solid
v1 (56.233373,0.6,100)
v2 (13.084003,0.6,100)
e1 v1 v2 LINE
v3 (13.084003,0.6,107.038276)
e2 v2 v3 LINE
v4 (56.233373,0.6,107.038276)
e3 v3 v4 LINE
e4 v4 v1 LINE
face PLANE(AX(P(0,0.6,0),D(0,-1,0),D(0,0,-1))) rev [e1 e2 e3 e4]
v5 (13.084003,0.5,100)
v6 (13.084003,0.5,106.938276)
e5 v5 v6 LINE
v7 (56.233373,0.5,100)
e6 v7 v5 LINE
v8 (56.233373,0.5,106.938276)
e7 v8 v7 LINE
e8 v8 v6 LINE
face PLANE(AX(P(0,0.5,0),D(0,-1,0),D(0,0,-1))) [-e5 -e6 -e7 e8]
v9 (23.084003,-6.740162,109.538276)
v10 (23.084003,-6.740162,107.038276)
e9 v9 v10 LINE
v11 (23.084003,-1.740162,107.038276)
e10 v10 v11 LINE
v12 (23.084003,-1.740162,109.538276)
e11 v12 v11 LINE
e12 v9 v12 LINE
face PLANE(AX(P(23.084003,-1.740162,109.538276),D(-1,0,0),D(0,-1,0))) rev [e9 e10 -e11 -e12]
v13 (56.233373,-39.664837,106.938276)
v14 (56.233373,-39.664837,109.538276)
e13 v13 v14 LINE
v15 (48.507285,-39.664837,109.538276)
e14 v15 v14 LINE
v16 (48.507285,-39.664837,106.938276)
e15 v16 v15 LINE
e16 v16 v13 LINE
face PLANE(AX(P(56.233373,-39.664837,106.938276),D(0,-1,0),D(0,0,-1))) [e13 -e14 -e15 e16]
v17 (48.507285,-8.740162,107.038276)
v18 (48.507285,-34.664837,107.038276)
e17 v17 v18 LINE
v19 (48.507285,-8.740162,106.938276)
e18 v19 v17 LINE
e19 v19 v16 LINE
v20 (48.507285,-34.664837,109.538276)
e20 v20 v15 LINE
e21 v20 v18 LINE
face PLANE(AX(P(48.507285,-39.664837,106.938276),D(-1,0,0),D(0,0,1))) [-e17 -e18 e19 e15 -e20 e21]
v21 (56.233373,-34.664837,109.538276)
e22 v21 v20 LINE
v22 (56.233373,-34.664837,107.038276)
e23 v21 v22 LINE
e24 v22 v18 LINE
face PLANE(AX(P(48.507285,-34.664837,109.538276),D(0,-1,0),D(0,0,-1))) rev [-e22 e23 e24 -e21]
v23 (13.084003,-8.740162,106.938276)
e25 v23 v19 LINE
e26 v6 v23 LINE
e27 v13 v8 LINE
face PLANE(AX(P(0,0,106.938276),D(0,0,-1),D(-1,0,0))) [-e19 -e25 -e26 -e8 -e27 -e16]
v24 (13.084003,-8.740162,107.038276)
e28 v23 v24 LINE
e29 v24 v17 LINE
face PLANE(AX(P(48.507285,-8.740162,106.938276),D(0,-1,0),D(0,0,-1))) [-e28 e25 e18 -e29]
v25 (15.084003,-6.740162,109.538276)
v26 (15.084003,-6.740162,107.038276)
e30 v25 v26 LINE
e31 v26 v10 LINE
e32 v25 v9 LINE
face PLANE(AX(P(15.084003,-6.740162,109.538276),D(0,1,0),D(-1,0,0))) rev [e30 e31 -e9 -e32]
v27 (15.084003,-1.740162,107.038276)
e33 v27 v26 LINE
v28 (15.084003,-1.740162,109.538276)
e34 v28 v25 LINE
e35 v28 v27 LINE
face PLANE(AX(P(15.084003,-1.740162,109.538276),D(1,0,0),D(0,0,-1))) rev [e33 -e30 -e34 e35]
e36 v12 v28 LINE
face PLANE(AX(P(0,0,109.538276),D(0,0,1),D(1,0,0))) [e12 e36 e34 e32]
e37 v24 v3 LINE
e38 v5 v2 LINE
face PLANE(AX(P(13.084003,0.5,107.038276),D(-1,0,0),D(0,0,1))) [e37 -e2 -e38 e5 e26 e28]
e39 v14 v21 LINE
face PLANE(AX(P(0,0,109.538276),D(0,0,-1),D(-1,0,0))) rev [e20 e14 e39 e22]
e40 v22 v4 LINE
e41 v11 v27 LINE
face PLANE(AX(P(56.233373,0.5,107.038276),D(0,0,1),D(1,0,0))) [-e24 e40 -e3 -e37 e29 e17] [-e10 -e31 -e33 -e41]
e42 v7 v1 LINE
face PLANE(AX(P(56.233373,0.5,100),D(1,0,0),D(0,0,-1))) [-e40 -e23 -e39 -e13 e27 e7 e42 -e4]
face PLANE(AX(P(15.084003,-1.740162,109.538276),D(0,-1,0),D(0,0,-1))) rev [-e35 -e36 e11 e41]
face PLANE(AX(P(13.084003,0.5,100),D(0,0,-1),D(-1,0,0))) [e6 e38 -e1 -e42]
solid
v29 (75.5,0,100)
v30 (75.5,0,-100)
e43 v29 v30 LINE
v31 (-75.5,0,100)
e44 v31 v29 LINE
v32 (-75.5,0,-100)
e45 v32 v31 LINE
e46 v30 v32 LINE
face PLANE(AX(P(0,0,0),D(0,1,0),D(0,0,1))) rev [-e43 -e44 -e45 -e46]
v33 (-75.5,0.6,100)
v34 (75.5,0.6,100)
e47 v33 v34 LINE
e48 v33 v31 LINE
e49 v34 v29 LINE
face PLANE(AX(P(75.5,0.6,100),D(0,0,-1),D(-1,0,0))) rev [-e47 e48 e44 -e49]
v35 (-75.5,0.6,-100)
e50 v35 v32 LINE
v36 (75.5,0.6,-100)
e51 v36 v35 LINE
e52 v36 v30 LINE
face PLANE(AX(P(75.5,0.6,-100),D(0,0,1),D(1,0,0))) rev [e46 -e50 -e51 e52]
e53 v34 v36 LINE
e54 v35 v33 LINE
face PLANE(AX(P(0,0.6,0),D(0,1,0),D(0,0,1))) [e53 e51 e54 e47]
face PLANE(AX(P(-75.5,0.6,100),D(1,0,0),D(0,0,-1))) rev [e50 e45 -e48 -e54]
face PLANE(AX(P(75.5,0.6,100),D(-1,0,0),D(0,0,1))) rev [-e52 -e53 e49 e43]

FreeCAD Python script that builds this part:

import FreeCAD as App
import Part
import Sketcher

V = App.Vector
Q = App.Units.Quantity

doc = App.newDocument("Part")
body = doc.addObject("PartDesign::Body", "Body")

# Sketch on XZ plane
sketch1 = doc.addObject("Sketcher::SketchObject", "Sketch")
body.addObject(sketch1)
sketch1.AttachmentSupport = (doc.XZ_Plane, [""])
sketch1.MapMode = "FlatFace"
sketch1.addGeometry([
    Part.LineSegment(V(-75.5, -100, 0), V(-75.5, 100, 0)),
    Part.LineSegment(V(-75.5, 100, 0), V(75.5, 100, 0)),
    Part.LineSegment(V(75.5, 100, 0), V(75.5, -100, 0)),
    Part.LineSegment(V(75.5, -100, 0), V(-75.5, -100, 0)),
], False)
sketch1.addConstraint([
    Sketcher.Constraint("Coincident", 0, 2, 1, 1),
    Sketcher.Constraint("Coincident", 1, 2, 2, 1),
    Sketcher.Constraint("Coincident", 2, 2, 3, 1),
    Sketcher.Constraint("Coincident", 3, 2, 0, 1),
    Sketcher.Constraint("Vertical", 0),
    Sketcher.Constraint("Horizontal", 1),
    Sketcher.Constraint("Vertical", 2),
    Sketcher.Constraint("Horizontal", 3),
    Sketcher.Constraint("Symmetric", 0, 2, 2, 2, -1, 1),
    Sketcher.Constraint("DistanceX", 1, 1, 1, 2, Q("151 mm")),
    Sketcher.Constraint("DistanceY", 0, 1, 0, 2, Q("200 mm")),
])
pad1 = doc.addObject("PartDesign::Pad", "Pad")
body.addObject(pad1)
pad1.Profile = sketch1
pad1.Length = 0.6
pad1.Reversed = True
body2 = doc.addObject("PartDesign::Body", "Body001")

# Sketch on XZ plane
sketch2 = doc.addObject("Sketcher::SketchObject", "Sketch001")
body2.addObject(sketch2)
sketch2.AttachmentSupport = (doc.getObject("XZ_Plane001"), [""])
sketch2.MapMode = "FlatFace"
sketch2.AttachmentOffset = App.Placement(V(0, 0, -0.6), App.Rotation())
sketch2.addGeometry([
    Part.LineSegment(V(13.084003, 100, 0), V(13.084003, 107.038276, 0)),
    Part.LineSegment(V(13.084003, 107.038276, 0), V(56.233373, 107.038276, 0)),
    Part.LineSegment(V(56.233373, 107.038276, 0), V(56.233373, 100, 0)),
    Part.LineSegment(V(56.233373, 100, 0), V(13.084003, 100, 0)),
], False)
sketch2.addConstraint([
    Sketcher.Constraint("Coincident", 0, 2, 1, 1),
    Sketcher.Constraint("Coincident", 1, 2, 2, 1),
    Sketcher.Constraint("Coincident", 2, 2, 3, 1),
    Sketcher.Constraint("Coincident", 3, 2, 0, 1),
    Sketcher.Constraint("Vertical", 0),
    Sketcher.Constraint("Horizontal", 1),
    Sketcher.Constraint("Vertical", 2),
    Sketcher.Constraint("Horizontal", 3),
    Sketcher.Constraint("DistanceY", -1, 1, 2, 2, Q("100 mm")),
    Sketcher.Constraint("DistanceX", 1, 1, 1, 2, Q("43.14937 mm")),
    Sketcher.Constraint("DistanceY", 0, 1, 0, 2, Q("7.038276 mm")),
    Sketcher.Constraint("DistanceX", -1, 1, 0, 2, Q("13.084003 mm")),
])
pad2 = doc.addObject("PartDesign::Pad", "Pad001")
body2.addObject(pad2)
pad2.Profile = sketch2
pad2.Length = 0.1

# Sketch on XY plane
sketch3 = doc.addObject("Sketcher::SketchObject", "Sketch002")
body2.addObject(sketch3)
sketch3.AttachmentSupport = (doc.getObject("XY_Plane001"), [""])
sketch3.MapMode = "FlatFace"
sketch3.AttachmentOffset = App.Placement(V(0, 0, 107.038276), App.Rotation())
sketch3.addGeometry([
    Part.LineSegment(V(56.233373, -39.664837, 0), V(56.233373, 0.5, 0)),  # 0
    Part.LineSegment(V(56.233373, 0.5, 0), V(13.084003, 0.5, 0)),  # 1
    Part.LineSegment(V(13.084003, 0.5, 0), V(13.084003, -8.740162, 0)),  # 2
    Part.LineSegment(V(13.084003, -8.740162, 0), V(48.507285, -8.740162, 0)),  # 3
    Part.LineSegment(V(48.507285, -8.740162, 0), V(48.507285, -39.664837, 0)),  # 4
    Part.LineSegment(V(48.507285, -39.664837, 0), V(56.233373, -39.664837, 0)),  # 5
], False)
sketch3.addConstraint([
    Sketcher.Constraint("Coincident", 0, 2, 1, 1),
    Sketcher.Constraint("Coincident", 1, 2, 2, 1),
    Sketcher.Constraint("Coincident", 2, 2, 3, 1),
    Sketcher.Constraint("Coincident", 3, 2, 4, 1),
    Sketcher.Constraint("Coincident", 4, 2, 5, 1),
    Sketcher.Constraint("Coincident", 5, 2, 0, 1),
    Sketcher.Constraint("Vertical", 0),
    Sketcher.Constraint("Horizontal", 1),
    Sketcher.Constraint("Vertical", 2),
    Sketcher.Constraint("Horizontal", 3),
    Sketcher.Constraint("Vertical", 4),
    Sketcher.Constraint("Horizontal", 5),
    Sketcher.Constraint("DistanceY", -1, 1, 0, 2, Q("0.5 mm")),
    Sketcher.Constraint("DistanceX", 1, 2, 1, 1, Q("43.14937 mm")),
    Sketcher.Constraint("DistanceX", 3, 1, 3, 2, Q("35.423282 mm")),
    Sketcher.Constraint("DistanceY", 0, 1, 0, 2, Q("40.164837 mm")),
    Sketcher.Constraint("DistanceY", 2, 2, 2, 1, Q("9.240162 mm")),
    Sketcher.Constraint("DistanceX", -1, 1, 0, 2, Q("56.233373 mm")),
])
pad3 = doc.addObject("PartDesign::Pad", "Pad002")
body2.addObject(pad3)
pad3.Profile = sketch3
pad3.Length = 0.1
pad3.Reversed = True

# Sketch on XY plane
sketch4 = doc.addObject("Sketcher::SketchObject", "Sketch003")
body2.addObject(sketch4)
sketch4.AttachmentSupport = (doc.getObject("XY_Plane001"), [""])
sketch4.MapMode = "FlatFace"
sketch4.AttachmentOffset = App.Placement(V(0, 0, 107.038276), App.Rotation())
sketch4.addGeometry([
    Part.LineSegment(V(48.507285, -34.664837, 0), V(48.507285, -39.664837, 0)),  # 0
    Part.LineSegment(V(48.507285, -39.664837, 0), V(56.233373, -39.664837, 0)),  # 1
    Part.LineSegment(V(56.233373, -39.664837, 0), V(56.233373, -34.664837, 0)),  # 2
    Part.LineSegment(V(56.233373, -34.664837, 0), V(48.507285, -34.664837, 0)),  # 3
    Part.LineSegment(V(15.084003, -1.740162, 0), V(15.084003, -6.740162, 0)),  # 4
    Part.LineSegment(V(15.084003, -6.740162, 0), V(23.084003, -6.740162, 0)),  # 5
    Part.LineSegment(V(23.084003, -6.740162, 0), V(23.084003, -1.740162, 0)),  # 6
    Part.LineSegment(V(23.084003, -1.740162, 0), V(15.084003, -1.740162, 0)),  # 7
], False)
sketch4.addConstraint([
    Sketcher.Constraint("Coincident", 0, 2, 1, 1),
    Sketcher.Constraint("Coincident", 1, 2, 2, 1),
    Sketcher.Constraint("Coincident", 2, 2, 3, 1),
    Sketcher.Constraint("Coincident", 3, 2, 0, 1),
    Sketcher.Constraint("Coincident", 4, 2, 5, 1),
    Sketcher.Constraint("Coincident", 5, 2, 6, 1),
    Sketcher.Constraint("Coincident", 6, 2, 7, 1),
    Sketcher.Constraint("Coincident", 7, 2, 4, 1),
    Sketcher.Constraint("Vertical", 0),
    Sketcher.Constraint("Horizontal", 1),
    Sketcher.Constraint("Vertical", 2),
    Sketcher.Constraint("Horizontal", 3),
    Sketcher.Constraint("Vertical", 4),
    Sketcher.Constraint("Horizontal", 5),
    Sketcher.Constraint("Vertical", 6),
    Sketcher.Constraint("Horizontal", 7),
    Sketcher.Constraint("Equal", 2, 4),
    Sketcher.Constraint("DistanceX", 5, 1, 5, 2, Q("8 mm")),
    Sketcher.Constraint("DistanceY", 0, 2, 0, 1, Q("5 mm")),
    Sketcher.Constraint("DistanceX", 1, 1, 1, 2, Q("7.726088 mm")),
    Sketcher.Constraint("DistanceX", 4, 2, 2, 2, Q("41.14937 mm")),
    Sketcher.Constraint("DistanceX", -1, 1, 0, 2, Q("48.507285 mm")),
    Sketcher.Constraint("DistanceY", 0, 2, -1, 1, Q("39.664837 mm")),
    Sketcher.Constraint("DistanceY", 4, 2, -1, 1, Q("6.740162 mm")),
])
pad4 = doc.addObject("PartDesign::Pad", "Pad003")
body2.addObject(pad4)
pad4.Profile = sketch4
pad4.Length = 2.5

doc.recompute()
